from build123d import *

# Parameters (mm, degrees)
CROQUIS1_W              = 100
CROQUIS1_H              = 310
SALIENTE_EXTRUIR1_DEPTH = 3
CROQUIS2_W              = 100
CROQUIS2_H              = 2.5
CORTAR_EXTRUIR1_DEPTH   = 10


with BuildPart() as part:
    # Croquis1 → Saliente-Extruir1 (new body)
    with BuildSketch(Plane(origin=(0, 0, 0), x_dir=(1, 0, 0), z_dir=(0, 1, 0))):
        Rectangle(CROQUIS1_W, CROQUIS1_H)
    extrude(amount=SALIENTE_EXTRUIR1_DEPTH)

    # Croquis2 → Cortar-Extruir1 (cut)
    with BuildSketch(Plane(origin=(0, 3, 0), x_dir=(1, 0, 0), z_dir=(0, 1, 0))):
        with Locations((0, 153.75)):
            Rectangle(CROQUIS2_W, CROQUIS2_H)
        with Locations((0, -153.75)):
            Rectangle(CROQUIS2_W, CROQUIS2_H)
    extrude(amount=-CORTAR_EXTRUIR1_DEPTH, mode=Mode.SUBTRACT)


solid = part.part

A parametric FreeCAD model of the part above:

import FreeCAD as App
import Part
import Sketcher


def add_polygon(sketch, points):
    """Adds a closed chain of lines whose ends are joined by coincident constraints."""
    first, n = sketch.GeometryCount, len(points)
    for a, b in zip(points, points[1:] + points[:1]):
        sketch.addGeometry(Part.LineSegment(App.Vector(*a, 0), App.Vector(*b, 0)), False)
    for i in range(n):
        sketch.addConstraint(Sketcher.Constraint("Coincident", first + i, 2, first + (i + 1) % n, 1))

doc = App.newDocument("Part")
body = doc.addObject("PartDesign::Body", "Body")

# Sketch on XZ plane
sketch1 = doc.addObject("Sketcher::SketchObject", "Sketch")
body.addObject(sketch1)
sketch1.AttachmentSupport = (doc.XZ_Plane, [""])
sketch1.MapMode = "FlatFace"
add_polygon(sketch1, [(-50, -155), (-50, 155), (50, 155), (50, -155)])  # lines 0-3
sketch1.addConstraint(Sketcher.Constraint("Vertical", 0))
sketch1.addConstraint(Sketcher.Constraint("Horizontal", 1))
sketch1.addConstraint(Sketcher.Constraint("Vertical", 2))
sketch1.addConstraint(Sketcher.Constraint("Horizontal", 3))
sketch1.addConstraint(Sketcher.Constraint("Symmetric", 0, 2, 2, 2, -1, 1))
sketch1.addConstraint(Sketcher.Constraint("DistanceX", 1, 1, 1, 2, 100.0))
sketch1.addConstraint(Sketcher.Constraint("DistanceY", 0, 1, 0, 2, 310.0))
pad1 = doc.addObject("PartDesign::Pad", "Pad")
body.addObject(pad1)
pad1.Profile = sketch1
pad1.Length = 3
pad1.Reversed = True

# Sketch on XZ plane
sketch2 = doc.addObject("Sketcher::SketchObject", "Sketch001")
body.addObject(sketch2)
sketch2.AttachmentSupport = (doc.XZ_Plane, [""])
sketch2.MapMode = "FlatFace"
sketch2.AttachmentOffset = App.Placement(App.Vector(0, 0, -3), App.Rotation())
add_polygon(sketch2, [(-50, -155), (-50, -152.5), (50, -152.5), (50, -155)])  # lines 0-3
add_polygon(sketch2, [(-50, 152.5), (-50, 155), (50, 155), (50, 152.5)])  # lines 4-7
sketch2.addConstraint(Sketcher.Constraint("Vertical", 0))
sketch2.addConstraint(Sketcher.Constraint("Horizontal", 1))
sketch2.addConstraint(Sketcher.Constraint("Vertical", 2))
sketch2.addConstraint(Sketcher.Constraint("Horizontal", 3))
sketch2.addConstraint(Sketcher.Constraint("Vertical", 4))
sketch2.addConstraint(Sketcher.Constraint("Horizontal", 5))
sketch2.addConstraint(Sketcher.Constraint("Vertical", 6))
sketch2.addConstraint(Sketcher.Constraint("Horizontal", 7))
sketch2.addConstraint(Sketcher.Constraint("Symmetric", 2, 2, 4, 2, -1, 1))
sketch2.addConstraint(Sketcher.Constraint("Symmetric", 0, 2, 6, 2, -1, 1))
sketch2.addConstraint(Sketcher.Constraint("Vertical", 3, 2, 4, 2))
sketch2.addConstraint(Sketcher.Constraint("DistanceX", 1, 1, 1, 2, 100.0))
sketch2.addConstraint(Sketcher.Constraint("DistanceY", 0, 1, 0, 2, 2.5))
sketch2.addConstraint(Sketcher.Constraint("DistanceY", 2, 2, -1, 1, 155.0))
pocket1 = doc.addObject("PartDesign::Pocket", "Pocket")
body.addObject(pocket1)
pocket1.Profile = sketch2
pocket1.Length = 10
pocket1.Reversed = True

doc.recompute()
